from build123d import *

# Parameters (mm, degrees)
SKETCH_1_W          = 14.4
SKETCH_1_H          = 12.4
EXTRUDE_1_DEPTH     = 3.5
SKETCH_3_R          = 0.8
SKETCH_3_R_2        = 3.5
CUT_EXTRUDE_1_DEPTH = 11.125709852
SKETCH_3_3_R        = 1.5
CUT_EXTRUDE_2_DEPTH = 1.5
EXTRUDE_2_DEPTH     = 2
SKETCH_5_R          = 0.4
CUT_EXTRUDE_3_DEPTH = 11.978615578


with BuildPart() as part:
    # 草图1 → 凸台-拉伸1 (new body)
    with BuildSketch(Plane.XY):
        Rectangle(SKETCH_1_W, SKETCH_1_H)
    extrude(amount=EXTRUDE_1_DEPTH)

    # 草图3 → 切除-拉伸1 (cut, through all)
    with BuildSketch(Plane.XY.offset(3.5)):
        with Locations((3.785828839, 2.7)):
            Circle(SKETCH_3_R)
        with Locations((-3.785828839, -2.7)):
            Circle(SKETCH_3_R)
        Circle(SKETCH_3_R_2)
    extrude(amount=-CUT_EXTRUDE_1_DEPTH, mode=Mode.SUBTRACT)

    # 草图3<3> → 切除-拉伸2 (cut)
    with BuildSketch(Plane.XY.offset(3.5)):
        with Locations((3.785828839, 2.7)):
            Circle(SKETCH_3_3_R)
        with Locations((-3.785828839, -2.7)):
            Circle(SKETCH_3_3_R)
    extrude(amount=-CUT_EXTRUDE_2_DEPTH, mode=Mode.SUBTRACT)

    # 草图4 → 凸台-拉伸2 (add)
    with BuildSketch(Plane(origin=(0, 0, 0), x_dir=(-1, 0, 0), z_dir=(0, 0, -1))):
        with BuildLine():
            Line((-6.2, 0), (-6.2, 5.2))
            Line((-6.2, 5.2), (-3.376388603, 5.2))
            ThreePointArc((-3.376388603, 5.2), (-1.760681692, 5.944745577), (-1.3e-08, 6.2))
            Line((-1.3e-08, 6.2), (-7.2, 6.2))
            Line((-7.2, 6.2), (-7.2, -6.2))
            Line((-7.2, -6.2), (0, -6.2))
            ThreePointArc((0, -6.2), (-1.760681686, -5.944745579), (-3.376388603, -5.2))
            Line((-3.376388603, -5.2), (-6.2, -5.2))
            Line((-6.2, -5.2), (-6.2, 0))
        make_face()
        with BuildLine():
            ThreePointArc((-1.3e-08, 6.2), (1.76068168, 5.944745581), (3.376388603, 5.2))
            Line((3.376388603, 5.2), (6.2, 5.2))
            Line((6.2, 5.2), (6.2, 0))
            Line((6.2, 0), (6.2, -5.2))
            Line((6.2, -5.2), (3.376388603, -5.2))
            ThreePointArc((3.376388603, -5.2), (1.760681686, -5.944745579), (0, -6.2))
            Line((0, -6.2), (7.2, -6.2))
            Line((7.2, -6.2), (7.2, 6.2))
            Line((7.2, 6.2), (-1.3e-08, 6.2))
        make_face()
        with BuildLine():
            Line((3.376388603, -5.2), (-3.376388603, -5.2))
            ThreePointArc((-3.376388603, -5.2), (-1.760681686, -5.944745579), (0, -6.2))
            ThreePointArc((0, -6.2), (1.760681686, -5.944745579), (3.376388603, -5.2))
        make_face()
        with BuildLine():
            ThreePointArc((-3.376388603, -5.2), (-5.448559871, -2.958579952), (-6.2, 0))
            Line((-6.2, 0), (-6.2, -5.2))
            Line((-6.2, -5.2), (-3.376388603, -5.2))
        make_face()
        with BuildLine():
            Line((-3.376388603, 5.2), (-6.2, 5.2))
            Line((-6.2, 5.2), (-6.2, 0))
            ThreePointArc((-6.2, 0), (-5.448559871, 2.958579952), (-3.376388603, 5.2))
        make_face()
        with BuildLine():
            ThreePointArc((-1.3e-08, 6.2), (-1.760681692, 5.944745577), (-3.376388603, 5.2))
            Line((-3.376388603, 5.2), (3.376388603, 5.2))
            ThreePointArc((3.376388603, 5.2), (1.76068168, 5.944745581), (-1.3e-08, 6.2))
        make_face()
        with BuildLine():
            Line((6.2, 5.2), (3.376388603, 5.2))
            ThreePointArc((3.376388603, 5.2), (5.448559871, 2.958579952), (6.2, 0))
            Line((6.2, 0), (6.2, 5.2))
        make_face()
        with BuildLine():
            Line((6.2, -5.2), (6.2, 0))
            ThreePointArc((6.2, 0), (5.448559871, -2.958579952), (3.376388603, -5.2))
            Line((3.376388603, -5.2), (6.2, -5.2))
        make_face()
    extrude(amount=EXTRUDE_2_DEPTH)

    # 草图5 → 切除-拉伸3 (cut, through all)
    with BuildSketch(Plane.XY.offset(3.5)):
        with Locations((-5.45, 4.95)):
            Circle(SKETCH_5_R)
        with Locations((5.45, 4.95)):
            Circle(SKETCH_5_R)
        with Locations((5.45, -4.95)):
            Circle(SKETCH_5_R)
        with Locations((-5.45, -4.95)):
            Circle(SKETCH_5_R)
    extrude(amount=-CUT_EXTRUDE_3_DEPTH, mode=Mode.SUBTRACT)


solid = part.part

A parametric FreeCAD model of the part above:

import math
import FreeCAD as App
import Part
import Sketcher


def add_polygon(sketch, points):
    """Adds a closed chain of lines whose ends are joined by coincident constraints."""
    first, n = sketch.GeometryCount, len(points)
    for a, b in zip(points, points[1:] + points[:1]):
        sketch.addGeometry(Part.LineSegment(App.Vector(*a, 0), App.Vector(*b, 0)), False)
    for i in range(n):
        sketch.addConstraint(Sketcher.Constraint("Coincident", first + i, 2, first + (i + 1) % n, 1))

doc = App.newDocument("Part")
params = doc.addObject("Spreadsheet::Sheet", "Params")
for row, (alias, value) in enumerate([
    ("sketch1_width", "14.4 mm"),
    ("sketch1_height", "12.4 mm"),
    ("pad1_length", "3.5 mm"),
    ("sketch2_diameter", "7 mm"),
    ("sketch2_diameter2", "1.6 mm"),
    ("sketch3_diameter", "3 mm"),
    ("pocket2_length", "1.5 mm"),
    ("sketch4_radius", "6.2 mm"),
    ("sketch4_width", "14.4 mm"),
    ("sketch4_height", "12.4 mm"),
    ("pad2_length", "2 mm"),
    ("sketch5_diameter", "0.8 mm"),
], start=1):
    params.set(f"A{row}", alias)
    params.set(f"B{row}", "=" + value)
    params.setAlias(f"B{row}", alias)

body = doc.addObject("PartDesign::Body", "Body")

sketch1 = doc.addObject("Sketcher::SketchObject", "Sketch")
body.addObject(sketch1)
sketch1.AttachmentSupport = (doc.XY_Plane, [""])
sketch1.MapMode = "FlatFace"
add_polygon(sketch1, [(-7, 6), (-7, -6), (7, -6), (7, 6)])
sketch1.addConstraint([
    Sketcher.Constraint("Vertical", 0),
    Sketcher.Constraint("Horizontal", 1),
    Sketcher.Constraint("Vertical", 2),
    Sketcher.Constraint("Horizontal", 3),
    Sketcher.Constraint("Symmetric", 0, 2, 2, 2, -1, 1),
    Sketcher.Constraint("DistanceX", 1, 1, 1, 2, 14.4),
    Sketcher.Constraint("DistanceY", 0, 2, 0, 1, 12.4),
])
sketch1.setExpression("Constraints[9]", "Params.sketch1_width")
sketch1.setExpression("Constraints[10]", "Params.sketch1_height")
pad1 = doc.addObject("PartDesign::Pad", "Pad")
body.addObject(pad1)
pad1.Profile = sketch1
pad1.setExpression("Length", "Params.pad1_length")

sketch2 = doc.addObject("Sketcher::SketchObject", "Sketch001")
body.addObject(sketch2)
sketch2.AttachmentSupport = (doc.XY_Plane, [""])
sketch2.MapMode = "FlatFace"
sketch2.AttachmentOffset = App.Placement(App.Vector(0, 0, 3.5), App.Rotation())
sketch2.addGeometry([
    Part.Circle(App.Vector(3.8, 2.7, 0), App.Vector(0, 0, 1), 0.8),
    Part.Circle(App.Vector(-3.8, -2.7, 0), App.Vector(0, 0, 1), 0.8),
    Part.Circle(App.Vector(0, 0, 0), App.Vector(0, 0, 1), 3.5),
], False)
sketch2.addConstraint([
    Sketcher.Constraint("Coincident", 2, 3, -1, 1),
    Sketcher.Constraint("Equal", 0, 1),
    Sketcher.Constraint("Symmetric", 0, 3, 1, 3, -1, 1),
    Sketcher.Constraint("Diameter", 2, 7.0),
    Sketcher.Constraint("Diameter", 0, 1.6),
    Sketcher.Constraint("DistanceY", -1, 1, 0, 3, 2.7),
    Sketcher.Constraint("DistanceX", -1, 1, 0, 3, 3.785829),
])
sketch2.setExpression("Constraints[3]", "Params.sketch2_diameter")
sketch2.setExpression("Constraints[4]", "Params.sketch2_diameter2")
pocket1 = doc.addObject("PartDesign::Pocket", "Pocket")
body.addObject(pocket1)
pocket1.Profile = sketch2
pocket1.Type = "ThroughAll"

sketch3 = doc.addObject("Sketcher::SketchObject", "Sketch002")
body.addObject(sketch3)
sketch3.AttachmentSupport = (doc.XY_Plane, [""])
sketch3.MapMode = "FlatFace"
sketch3.AttachmentOffset = App.Placement(App.Vector(0, 0, 3.5), App.Rotation())
sketch3.addGeometry([
    Part.Circle(App.Vector(3.8, 2.7, 0), App.Vector(0, 0, 1), 1.5),
    Part.Circle(App.Vector(-3.8, -2.7, 0), App.Vector(0, 0, 1), 1.5),
], False)
sketch3.addConstraint([
    Sketcher.Constraint("Equal", 0, 1),
    Sketcher.Constraint("Symmetric", 0, 3, 1, 3, -1, 1),
    Sketcher.Constraint("Diameter", 0, 3.0),
    Sketcher.Constraint("DistanceY", -1, 1, 0, 3, 2.7),
    Sketcher.Constraint("DistanceX", -1, 1, 0, 3, 3.785829),
])
sketch3.setExpression("Constraints[2]", "Params.sketch3_diameter")
pocket2 = doc.addObject("PartDesign::Pocket", "Pocket001")
body.addObject(pocket2)
pocket2.Profile = sketch3
pocket2.setExpression("Length", "Params.pocket2_length")

sketch4 = doc.addObject("Sketcher::SketchObject", "Sketch003")
body.addObject(sketch4)
sketch4.AttachmentSupport = (doc.XY_Plane, [""])
sketch4.MapMode = "FlatFace"
add_polygon(sketch4, [(-7, 6), (7, 6), (7, -6), (-7, -6)])
sketch4.addGeometry(Part.ArcOfCircle(Part.Circle(App.Vector(0, 0, 0), App.Vector(0, 0, 1), 6), math.radians(0), math.radians(57)), False)
sketch4.addGeometry(Part.LineSegment(App.Vector(3, 5, 0), App.Vector(-3, 5, 0)), False)
sketch4.addGeometry(Part.ArcOfCircle(Part.Circle(App.Vector(0, 0, 0), App.Vector(0, 0, 1), 6), math.radians(123), math.radians(180)), False)
sketch4.addGeometry(Part.ArcOfCircle(Part.Circle(App.Vector(0, 0, 0), App.Vector(0, 0, 1), 6), math.radians(180), math.radians(237)), False)
sketch4.addGeometry(Part.LineSegment(App.Vector(-3, -5, 0), App.Vector(3, -5, 0)), False)
sketch4.addGeometry(Part.ArcOfCircle(Part.Circle(App.Vector(0, 0, 0), App.Vector(0, 0, 1), 6), math.radians(-57), math.radians(0)), False)
sketch4.addConstraint([
    Sketcher.Constraint("Coincident", 4, 2, 5, 1),
    Sketcher.Constraint("Coincident", 5, 2, 6, 1),
    Sketcher.Constraint("Tangent", 6, 2, 7, 1),
    Sketcher.Constraint("Coincident", 7, 2, 8, 1),
    Sketcher.Constraint("Coincident", 8, 2, 9, 1),
    Sketcher.Constraint("Tangent", 9, 2, 4, 1),
    Sketcher.Constraint("Horizontal", 0),
    Sketcher.Constraint("Vertical", 1),
    Sketcher.Constraint("Horizontal", 2),
    Sketcher.Constraint("Vertical", 3),
    Sketcher.Constraint("Horizontal", 5),
    Sketcher.Constraint("Horizontal", 8),
    Sketcher.Constraint("Coincident", 4, 3, -1, 1),
    Sketcher.Constraint("Coincident", 6, 3, -1, 1),
    Sketcher.Constraint("Equal", 4, 6),
    Sketcher.Constraint("Equal", 6, 7),
    Sketcher.Constraint("Equal", 7, 9),
    Sketcher.Constraint("Symmetric", 0, 2, 2, 2, -1, 1),
    Sketcher.Constraint("PointOnObject", 6, 2, -1),
    Sketcher.Constraint("PointOnObject", 9, 2, -1),
    Sketcher.Constraint("Vertical", 5, 2, 7, 2),
    Sketcher.Constraint("Radius", 4, 6.2),
    Sketcher.Constraint("DistanceX", 0, 1, 0, 2, 14.4),
    Sketcher.Constraint("DistanceY", 1, 2, 1, 1, 12.4),
    Sketcher.Constraint("DistanceY", 4, 2, 0, 2, 1.0),
])
sketch4.setExpression("Constraints[25]", "Params.sketch4_radius")
sketch4.setExpression("Constraints[26]", "Params.sketch4_width")
sketch4.setExpression("Constraints[27]", "Params.sketch4_height")
pad2 = doc.addObject("PartDesign::Pad", "Pad001")
body.addObject(pad2)
pad2.Profile = sketch4
pad2.setExpression("Length", "Params.pad2_length")
pad2.Reversed = True

sketch5 = doc.addObject("Sketcher::SketchObject", "Sketch004")
body.addObject(sketch5)
sketch5.AttachmentSupport = (doc.XY_Plane, [""])
sketch5.MapMode = "FlatFace"
sketch5.AttachmentOffset = App.Placement(App.Vector(0, 0, 3.5), App.Rotation())
sketch5.addGeometry([
    Part.Circle(App.Vector(-5.45, 4.95, 0), App.Vector(0, 0, 1), 0.4),
    Part.Circle(App.Vector(5.45, 4.95, 0), App.Vector(0, 0, 1), 0.4),
    Part.Circle(App.Vector(5.45, -4.95, 0), App.Vector(0, 0, 1), 0.4),
    Part.Circle(App.Vector(-5.45, -4.95, 0), App.Vector(0, 0, 1), 0.4),
], False)
sketch5.addConstraint([
    Sketcher.Constraint("Equal", 0, 1),
    Sketcher.Constraint("Equal", 1, 2),
    Sketcher.Constraint("Equal", 2, 3),
    Sketcher.Constraint("Symmetric", 0, 3, 2, 3, -1, 1),
    Sketcher.Constraint("Symmetric", 1, 3, 3, 3, -1, 1),
    Sketcher.Constraint("Symmetric", 0, 3, 1, 3, -2),
    Sketcher.Constraint("Diameter", 0, 0.8),
    Sketcher.Constraint("DistanceX", 0, 3, 1, 3, 10.9),
    Sketcher.Constraint("DistanceY", 2, 3, 1, 3, 9.9),
])
sketch5.setExpression("Constraints[6]", "Params.sketch5_diameter")
pocket3 = doc.addObject("PartDesign::Pocket", "Pocket002")
body.addObject(pocket3)
pocket3.Profile = sketch5
pocket3.Type = "ThroughAll"

doc.recompute()
